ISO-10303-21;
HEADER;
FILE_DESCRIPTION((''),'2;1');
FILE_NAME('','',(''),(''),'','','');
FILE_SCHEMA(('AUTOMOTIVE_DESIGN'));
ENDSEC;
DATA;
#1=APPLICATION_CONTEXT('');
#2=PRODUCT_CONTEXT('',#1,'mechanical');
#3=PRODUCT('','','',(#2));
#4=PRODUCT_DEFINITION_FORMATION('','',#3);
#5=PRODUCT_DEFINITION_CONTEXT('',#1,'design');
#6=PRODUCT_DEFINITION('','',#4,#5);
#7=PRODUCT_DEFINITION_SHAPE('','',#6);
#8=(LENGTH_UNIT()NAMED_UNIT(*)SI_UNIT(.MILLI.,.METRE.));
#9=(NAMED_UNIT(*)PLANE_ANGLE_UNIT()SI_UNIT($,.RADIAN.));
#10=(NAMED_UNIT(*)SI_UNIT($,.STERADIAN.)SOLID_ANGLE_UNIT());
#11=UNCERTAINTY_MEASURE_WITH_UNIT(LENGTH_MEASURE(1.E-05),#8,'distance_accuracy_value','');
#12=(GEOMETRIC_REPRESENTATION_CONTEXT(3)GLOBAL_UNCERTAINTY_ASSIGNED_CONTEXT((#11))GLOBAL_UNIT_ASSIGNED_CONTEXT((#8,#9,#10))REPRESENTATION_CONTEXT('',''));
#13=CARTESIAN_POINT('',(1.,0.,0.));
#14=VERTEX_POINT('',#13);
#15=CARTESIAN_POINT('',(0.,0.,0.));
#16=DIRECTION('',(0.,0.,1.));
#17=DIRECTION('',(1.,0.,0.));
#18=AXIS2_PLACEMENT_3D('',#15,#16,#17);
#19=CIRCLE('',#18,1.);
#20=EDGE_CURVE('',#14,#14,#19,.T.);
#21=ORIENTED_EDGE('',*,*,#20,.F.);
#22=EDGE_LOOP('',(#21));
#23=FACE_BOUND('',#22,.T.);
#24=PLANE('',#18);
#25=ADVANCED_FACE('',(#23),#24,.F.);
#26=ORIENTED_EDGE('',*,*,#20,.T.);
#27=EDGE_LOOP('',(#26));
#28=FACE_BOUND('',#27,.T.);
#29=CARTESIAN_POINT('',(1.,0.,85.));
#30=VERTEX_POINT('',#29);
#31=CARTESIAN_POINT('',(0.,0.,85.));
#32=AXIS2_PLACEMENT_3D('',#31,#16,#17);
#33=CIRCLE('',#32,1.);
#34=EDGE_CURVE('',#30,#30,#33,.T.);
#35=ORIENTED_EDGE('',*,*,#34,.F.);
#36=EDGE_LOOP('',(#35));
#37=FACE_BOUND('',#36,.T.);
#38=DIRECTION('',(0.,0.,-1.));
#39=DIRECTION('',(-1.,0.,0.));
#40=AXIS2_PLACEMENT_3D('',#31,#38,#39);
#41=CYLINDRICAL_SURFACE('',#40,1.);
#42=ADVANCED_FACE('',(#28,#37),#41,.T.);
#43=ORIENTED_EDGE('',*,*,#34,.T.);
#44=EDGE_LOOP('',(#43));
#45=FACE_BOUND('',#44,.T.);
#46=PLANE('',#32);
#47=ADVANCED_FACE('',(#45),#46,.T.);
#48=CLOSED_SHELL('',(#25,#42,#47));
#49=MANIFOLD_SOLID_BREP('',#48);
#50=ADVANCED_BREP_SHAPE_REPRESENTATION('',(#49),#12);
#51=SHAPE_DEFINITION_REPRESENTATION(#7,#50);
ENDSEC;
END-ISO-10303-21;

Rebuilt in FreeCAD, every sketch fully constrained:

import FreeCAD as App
import Part
import Sketcher
from FreeCAD import Vector

doc = App.newDocument("Part")
body = doc.addObject("PartDesign::Body", "Body")

sketch1 = body.newObject("Sketcher::SketchObject", "Sketch")
sketch1.AttachmentSupport = (doc.getObject("XY_Plane"), [""])
sketch1.MapMode = "FlatFace"
sketch1.addGeometry(Part.Circle(Vector(0, 0, 0), Vector(0, 0, 1), 1), False)
sketch1.addConstraint([
    Sketcher.Constraint("Coincident", 0, 3, -1, 1),
    Sketcher.Constraint("Diameter", 0, 2.0),
])
pad1 = body.newObject("PartDesign::Pad", "Pad")
pad1.Profile = sketch1
pad1.Length = 85

doc.recompute()
